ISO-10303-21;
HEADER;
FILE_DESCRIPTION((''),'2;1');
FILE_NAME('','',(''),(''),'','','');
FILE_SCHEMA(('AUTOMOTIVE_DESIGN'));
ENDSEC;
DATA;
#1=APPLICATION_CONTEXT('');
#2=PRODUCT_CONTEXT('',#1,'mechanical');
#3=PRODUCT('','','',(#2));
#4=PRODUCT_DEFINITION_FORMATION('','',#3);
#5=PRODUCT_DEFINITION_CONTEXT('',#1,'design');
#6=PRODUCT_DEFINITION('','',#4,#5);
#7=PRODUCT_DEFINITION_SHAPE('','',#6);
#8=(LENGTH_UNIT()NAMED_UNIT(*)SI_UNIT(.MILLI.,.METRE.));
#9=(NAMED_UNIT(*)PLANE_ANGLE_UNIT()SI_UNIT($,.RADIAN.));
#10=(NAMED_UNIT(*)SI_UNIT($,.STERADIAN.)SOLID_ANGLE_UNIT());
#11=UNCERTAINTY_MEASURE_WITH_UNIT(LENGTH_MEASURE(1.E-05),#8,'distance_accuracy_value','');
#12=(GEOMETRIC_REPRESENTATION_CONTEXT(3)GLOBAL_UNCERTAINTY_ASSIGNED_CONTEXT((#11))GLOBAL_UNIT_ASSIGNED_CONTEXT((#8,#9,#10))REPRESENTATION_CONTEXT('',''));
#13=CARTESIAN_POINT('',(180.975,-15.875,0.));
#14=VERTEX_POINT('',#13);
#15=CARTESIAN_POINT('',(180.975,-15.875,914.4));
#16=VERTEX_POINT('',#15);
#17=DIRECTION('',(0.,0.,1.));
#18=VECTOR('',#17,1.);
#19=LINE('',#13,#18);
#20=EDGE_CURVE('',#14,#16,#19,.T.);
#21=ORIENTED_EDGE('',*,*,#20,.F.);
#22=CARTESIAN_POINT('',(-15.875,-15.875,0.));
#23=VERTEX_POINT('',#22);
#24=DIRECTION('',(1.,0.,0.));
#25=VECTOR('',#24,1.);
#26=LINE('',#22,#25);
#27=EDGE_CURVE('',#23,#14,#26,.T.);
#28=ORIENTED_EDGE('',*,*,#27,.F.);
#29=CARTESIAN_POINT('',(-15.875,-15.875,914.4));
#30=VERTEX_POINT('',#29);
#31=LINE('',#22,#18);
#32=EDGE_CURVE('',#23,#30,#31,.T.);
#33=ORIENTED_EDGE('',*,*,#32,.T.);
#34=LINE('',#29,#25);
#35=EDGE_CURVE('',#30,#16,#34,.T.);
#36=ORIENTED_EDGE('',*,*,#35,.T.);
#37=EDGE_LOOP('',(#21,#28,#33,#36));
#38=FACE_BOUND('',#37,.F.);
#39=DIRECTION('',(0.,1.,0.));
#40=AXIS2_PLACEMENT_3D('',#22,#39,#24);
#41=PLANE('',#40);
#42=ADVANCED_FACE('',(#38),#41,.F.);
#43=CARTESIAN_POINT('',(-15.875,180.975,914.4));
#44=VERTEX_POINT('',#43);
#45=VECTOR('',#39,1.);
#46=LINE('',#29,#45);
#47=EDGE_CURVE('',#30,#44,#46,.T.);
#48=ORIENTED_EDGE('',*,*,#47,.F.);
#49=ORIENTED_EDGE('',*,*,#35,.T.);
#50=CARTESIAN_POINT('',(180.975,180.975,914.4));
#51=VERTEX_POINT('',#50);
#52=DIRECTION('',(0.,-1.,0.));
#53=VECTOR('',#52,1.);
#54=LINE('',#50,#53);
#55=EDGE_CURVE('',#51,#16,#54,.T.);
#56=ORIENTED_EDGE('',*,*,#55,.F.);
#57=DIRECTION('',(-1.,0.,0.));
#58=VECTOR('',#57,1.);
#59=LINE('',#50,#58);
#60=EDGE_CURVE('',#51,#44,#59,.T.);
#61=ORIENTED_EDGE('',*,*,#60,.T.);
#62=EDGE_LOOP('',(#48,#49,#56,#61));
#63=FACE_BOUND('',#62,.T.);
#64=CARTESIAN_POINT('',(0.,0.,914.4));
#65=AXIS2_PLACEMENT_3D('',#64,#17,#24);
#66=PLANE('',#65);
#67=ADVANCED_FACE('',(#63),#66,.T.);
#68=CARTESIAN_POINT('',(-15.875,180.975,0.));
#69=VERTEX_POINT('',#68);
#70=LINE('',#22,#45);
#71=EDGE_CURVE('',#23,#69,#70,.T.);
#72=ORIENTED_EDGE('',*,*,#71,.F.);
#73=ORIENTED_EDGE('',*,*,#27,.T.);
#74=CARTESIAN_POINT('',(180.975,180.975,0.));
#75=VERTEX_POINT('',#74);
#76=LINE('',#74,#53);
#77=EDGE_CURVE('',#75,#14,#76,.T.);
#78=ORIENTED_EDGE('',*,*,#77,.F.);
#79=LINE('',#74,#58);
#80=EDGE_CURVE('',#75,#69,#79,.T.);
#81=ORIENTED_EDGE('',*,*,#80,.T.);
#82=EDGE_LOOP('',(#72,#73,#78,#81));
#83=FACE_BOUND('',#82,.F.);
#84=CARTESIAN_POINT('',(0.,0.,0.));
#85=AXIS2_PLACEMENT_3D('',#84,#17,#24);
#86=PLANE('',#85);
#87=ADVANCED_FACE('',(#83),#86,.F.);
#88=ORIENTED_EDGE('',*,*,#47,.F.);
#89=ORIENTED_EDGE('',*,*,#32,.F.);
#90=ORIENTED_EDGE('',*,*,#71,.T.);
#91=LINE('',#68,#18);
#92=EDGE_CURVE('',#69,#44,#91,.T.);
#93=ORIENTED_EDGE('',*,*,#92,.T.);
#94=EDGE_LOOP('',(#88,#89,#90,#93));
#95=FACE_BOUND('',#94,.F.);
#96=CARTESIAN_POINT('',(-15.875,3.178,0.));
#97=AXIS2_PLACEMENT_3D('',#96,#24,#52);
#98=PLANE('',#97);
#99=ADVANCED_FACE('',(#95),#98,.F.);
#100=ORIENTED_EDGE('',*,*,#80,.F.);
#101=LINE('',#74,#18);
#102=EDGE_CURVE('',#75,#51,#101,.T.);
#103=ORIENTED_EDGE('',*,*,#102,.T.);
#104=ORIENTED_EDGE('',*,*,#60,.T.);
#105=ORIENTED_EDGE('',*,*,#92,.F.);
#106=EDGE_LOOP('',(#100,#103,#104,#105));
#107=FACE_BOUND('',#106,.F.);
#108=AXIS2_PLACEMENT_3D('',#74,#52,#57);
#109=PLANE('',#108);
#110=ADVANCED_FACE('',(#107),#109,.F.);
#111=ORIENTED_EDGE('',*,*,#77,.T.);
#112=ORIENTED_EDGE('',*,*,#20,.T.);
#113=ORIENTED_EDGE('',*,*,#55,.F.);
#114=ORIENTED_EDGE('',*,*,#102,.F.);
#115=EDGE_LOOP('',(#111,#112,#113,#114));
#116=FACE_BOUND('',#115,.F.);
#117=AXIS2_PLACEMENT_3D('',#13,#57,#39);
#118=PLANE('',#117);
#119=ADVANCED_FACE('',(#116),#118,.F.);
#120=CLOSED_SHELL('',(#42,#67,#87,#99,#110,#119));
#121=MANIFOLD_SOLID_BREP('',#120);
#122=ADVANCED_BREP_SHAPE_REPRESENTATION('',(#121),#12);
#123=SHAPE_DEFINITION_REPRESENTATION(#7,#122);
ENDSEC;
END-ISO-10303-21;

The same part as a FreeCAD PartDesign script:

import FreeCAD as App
import Part
import Sketcher
Q = App.Units.Quantity


def add_polygon(sketch, points):
    """Adds a closed chain of lines whose ends are joined by coincident constraints."""
    first, n = sketch.GeometryCount, len(points)
    for a, b in zip(points, points[1:] + points[:1]):
        sketch.addGeometry(Part.LineSegment(App.Vector(*a, 0), App.Vector(*b, 0)), False)
    for i in range(n):
        sketch.addConstraint(Sketcher.Constraint("Coincident", first + i, 2, first + (i + 1) % n, 1))

doc = App.newDocument("Part")
body = doc.addObject("PartDesign::Body", "Body")

# Sketch on XY plane
sketch1 = body.newObject("Sketcher::SketchObject", "Sketch")
sketch1.AttachmentSupport = (doc.getObject("XY_Plane"), [""])
sketch1.MapMode = "FlatFace"
add_polygon(sketch1, [(180.975, -15.875), (180.975, 180.975), (-15.875, 180.975), (-15.875, -15.875)])  # lines 0-3
sketch1.addConstraint([
    Sketcher.Constraint("Vertical", 0),
    Sketcher.Constraint("Horizontal", 1),
    Sketcher.Constraint("Vertical", 2),
    Sketcher.Constraint("Horizontal", 3),
    Sketcher.Constraint("Equal", 3, 0),
    Sketcher.Constraint("DistanceX", 1, 2, 1, 1, Q("7.75 in")),
    Sketcher.Constraint("DistanceX", 1, 2, -1, 1, Q("0.625 in")),
    Sketcher.Constraint("DistanceY", 2, 2, -1, 1, Q("0.625 in")),
])
pad1 = body.newObject("PartDesign::Pad", "Pad")
pad1.Profile = sketch1
pad1.Length = Q("36 in")

doc.recompute()
